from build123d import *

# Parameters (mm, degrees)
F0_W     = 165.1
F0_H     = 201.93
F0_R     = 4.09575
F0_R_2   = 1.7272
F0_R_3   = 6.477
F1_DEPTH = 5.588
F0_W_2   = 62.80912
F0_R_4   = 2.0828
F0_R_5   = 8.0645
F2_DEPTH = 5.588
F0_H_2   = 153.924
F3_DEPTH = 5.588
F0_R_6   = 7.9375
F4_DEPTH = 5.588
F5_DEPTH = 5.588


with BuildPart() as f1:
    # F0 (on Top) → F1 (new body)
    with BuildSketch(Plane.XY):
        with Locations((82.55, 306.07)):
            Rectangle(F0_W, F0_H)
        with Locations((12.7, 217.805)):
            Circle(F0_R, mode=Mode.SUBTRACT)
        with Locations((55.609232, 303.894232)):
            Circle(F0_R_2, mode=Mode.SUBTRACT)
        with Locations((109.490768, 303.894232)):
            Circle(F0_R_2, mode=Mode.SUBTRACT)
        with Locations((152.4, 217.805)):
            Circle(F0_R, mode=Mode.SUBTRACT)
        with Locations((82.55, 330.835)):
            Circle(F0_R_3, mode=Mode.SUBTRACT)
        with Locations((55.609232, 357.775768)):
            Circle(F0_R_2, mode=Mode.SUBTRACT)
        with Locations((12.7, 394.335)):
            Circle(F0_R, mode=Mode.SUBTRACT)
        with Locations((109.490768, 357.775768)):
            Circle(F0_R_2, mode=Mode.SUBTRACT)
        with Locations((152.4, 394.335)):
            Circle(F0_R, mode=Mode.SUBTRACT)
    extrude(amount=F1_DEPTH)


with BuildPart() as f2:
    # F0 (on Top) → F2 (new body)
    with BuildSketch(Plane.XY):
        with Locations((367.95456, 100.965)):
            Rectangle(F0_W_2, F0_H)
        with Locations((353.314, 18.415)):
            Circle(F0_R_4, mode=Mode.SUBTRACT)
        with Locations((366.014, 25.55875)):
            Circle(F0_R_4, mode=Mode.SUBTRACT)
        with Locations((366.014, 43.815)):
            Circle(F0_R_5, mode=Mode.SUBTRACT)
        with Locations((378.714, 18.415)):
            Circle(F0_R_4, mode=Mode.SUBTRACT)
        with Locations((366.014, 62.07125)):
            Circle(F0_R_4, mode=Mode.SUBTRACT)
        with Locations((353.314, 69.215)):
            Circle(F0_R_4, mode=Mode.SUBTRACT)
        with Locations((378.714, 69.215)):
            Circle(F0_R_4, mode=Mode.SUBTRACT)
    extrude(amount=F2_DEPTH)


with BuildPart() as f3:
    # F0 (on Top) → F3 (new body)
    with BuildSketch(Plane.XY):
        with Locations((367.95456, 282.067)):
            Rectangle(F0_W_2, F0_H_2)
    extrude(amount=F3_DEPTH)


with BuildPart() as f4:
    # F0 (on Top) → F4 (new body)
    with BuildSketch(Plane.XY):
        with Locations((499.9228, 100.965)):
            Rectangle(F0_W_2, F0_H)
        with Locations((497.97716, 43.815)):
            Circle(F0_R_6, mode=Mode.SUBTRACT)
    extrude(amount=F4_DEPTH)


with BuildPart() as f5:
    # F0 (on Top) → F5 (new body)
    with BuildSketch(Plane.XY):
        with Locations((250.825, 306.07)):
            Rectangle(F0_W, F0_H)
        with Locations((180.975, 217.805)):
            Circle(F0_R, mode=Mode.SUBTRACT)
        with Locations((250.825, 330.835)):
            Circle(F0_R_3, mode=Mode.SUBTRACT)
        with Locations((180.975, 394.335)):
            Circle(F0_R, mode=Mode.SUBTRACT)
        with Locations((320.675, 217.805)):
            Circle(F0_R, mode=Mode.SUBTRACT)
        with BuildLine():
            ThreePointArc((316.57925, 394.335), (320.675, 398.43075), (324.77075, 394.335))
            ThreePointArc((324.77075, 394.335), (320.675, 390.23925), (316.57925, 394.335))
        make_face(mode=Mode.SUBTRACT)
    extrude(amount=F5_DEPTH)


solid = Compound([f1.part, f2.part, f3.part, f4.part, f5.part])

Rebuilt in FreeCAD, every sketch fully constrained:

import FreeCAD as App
import Part
import Sketcher
from FreeCAD import Vector
Q = App.Units.Quantity

doc = App.newDocument("Part")
body = doc.addObject("PartDesign::Body", "Body")

# Sketch on XY plane
sketch1 = body.newObject("Sketcher::SketchObject", "Sketch")
sketch1.AttachmentSupport = (doc.getObject("XY_Plane"), [""])
sketch1.MapMode = "FlatFace"
sketch1.addGeometry(Part.LineSegment(Vector(0, 407, 0), Vector(0, 205.1, 0)), False)
sketch1.addGeometry(Part.LineSegment(Vector(0, 205.1, 0), Vector(165.1, 205.1, 0)), False)
sketch1.addGeometry(Part.LineSegment(Vector(165.1, 205.1, 0), Vector(165.1, 407, 0)), False)
sketch1.addGeometry(Part.LineSegment(Vector(165.1, 407, 0), Vector(0, 407, 0)), False)
sketch1.addGeometry(Part.Circle(Vector(12.7, 217.8, 0), Vector(0, 0, 1), 4.1), False)
sketch1.addGeometry(Part.Circle(Vector(55.6, 303.9, 0), Vector(0, 0, 1), 1.7), False)
sketch1.addGeometry(Part.Circle(Vector(152.4, 217.8, 0), Vector(0, 0, 1), 4.1), False)
sketch1.addGeometry(Part.Circle(Vector(109.5, 303.9, 0), Vector(0, 0, 1), 1.7), False)
sketch1.addGeometry(Part.Circle(Vector(82.5, 330.8, 0), Vector(0, 0, 1), 6.5), False)
sketch1.addGeometry(Part.Circle(Vector(12.7, 394.3, 0), Vector(0, 0, 1), 4.1), False)
sketch1.addGeometry(Part.Circle(Vector(55.6, 357.8, 0), Vector(0, 0, 1), 1.7), False)
sketch1.addGeometry(Part.Circle(Vector(109.5, 357.8, 0), Vector(0, 0, 1), 1.7), False)
sketch1.addGeometry(Part.Circle(Vector(152.4, 394.3, 0), Vector(0, 0, 1), 4.1), False)
sketch1.addConstraint(Sketcher.Constraint("Coincident", 0, 2, 1, 1))
sketch1.addConstraint(Sketcher.Constraint("Coincident", 1, 2, 2, 1))
sketch1.addConstraint(Sketcher.Constraint("Coincident", 2, 2, 3, 1))
sketch1.addConstraint(Sketcher.Constraint("Coincident", 3, 2, 0, 1))
sketch1.addConstraint(Sketcher.Constraint("Vertical", 0))
sketch1.addConstraint(Sketcher.Constraint("Horizontal", 1))
sketch1.addConstraint(Sketcher.Constraint("Vertical", 2))
sketch1.addConstraint(Sketcher.Constraint("Horizontal", 3))
sketch1.addConstraint(Sketcher.Constraint("Equal", 4, 6))
sketch1.addConstraint(Sketcher.Constraint("Equal", 5, 7))
sketch1.addConstraint(Sketcher.Constraint("Equal", 6, 9))
sketch1.addConstraint(Sketcher.Constraint("Equal", 7, 10))
sketch1.addConstraint(Sketcher.Constraint("Equal", 10, 11))
sketch1.addConstraint(Sketcher.Constraint("Equal", 9, 12))
sketch1.addConstraint(Sketcher.Constraint("PointOnObject", 0, 2, -2))
sketch1.addConstraint(Sketcher.Constraint("Horizontal", 4, 3, 6, 3))
sketch1.addConstraint(Sketcher.Constraint("Horizontal", 5, 3, 7, 3))
sketch1.addConstraint(Sketcher.Constraint("Horizontal", 10, 3, 11, 3))
sketch1.addConstraint(Sketcher.Constraint("Horizontal", 9, 3, 12, 3))
sketch1.addConstraint(Sketcher.Constraint("Vertical", 4, 3, 9, 3))
sketch1.addConstraint(Sketcher.Constraint("Vertical", 5, 3, 10, 3))
sketch1.addConstraint(Sketcher.Constraint("Vertical", 7, 3, 11, 3))
sketch1.addConstraint(Sketcher.Constraint("Vertical", 6, 3, 12, 3))
sketch1.addConstraint(Sketcher.Constraint("Diameter", 8, Q("0.51 in")))
sketch1.addConstraint(Sketcher.Constraint("Diameter", 5, Q("0.136 in")))
sketch1.addConstraint(Sketcher.Constraint("DistanceX", 1, 1, 1, 2, Q("6.5 in")))
sketch1.addConstraint(Sketcher.Constraint("DistanceX", -1, 1, 6, 3, Q("6 in")))
sketch1.addConstraint(Sketcher.Constraint("DistanceX", 4, 3, 1, 2, Q("6 in")))
sketch1.addConstraint(Sketcher.Constraint("DistanceY", 8, 3, 2, 2, Q("3 in")))
sketch1.addConstraint(Sketcher.Constraint("Diameter", 4, Q("0.3225 in")))
sketch1.addConstraint(Sketcher.Constraint("DistanceY", 0, 2, 0, 1, Q("7.95 in")))
sketch1.addConstraint(Sketcher.Constraint("DistanceY", 8, 3, 9, 3, Q("2.5 in")))
sketch1.addConstraint(Sketcher.Constraint("DistanceY", 0, 2, 4, 3, Q("0.5 in")))
sketch1.addConstraint(Sketcher.Constraint("DistanceX", -1, 1, 8, 3, Q("3.25 in")))
sketch1.addConstraint(Sketcher.Constraint("DistanceY", -1, 1, 4, 3, Q("8.575 in")))
sketch1.addConstraint(Sketcher.Constraint("DistanceY", -1, 1, 5, 3, Q("303.894232 mm")))
sketch1.addConstraint(Sketcher.Constraint("DistanceX", -1, 1, 7, 3, Q("109.490768 mm")))
sketch1.addConstraint(Sketcher.Constraint("DistanceY", -1, 1, 10, 3, Q("357.775768 mm")))
sketch1.addConstraint(Sketcher.Constraint("DistanceX", 5, 3, 6, 3, Q("96.790768 mm")))
pad1 = body.newObject("PartDesign::Pad", "Pad")
pad1.Profile = sketch1
pad1.Length = Q("0.22 in")
body2 = doc.addObject("PartDesign::Body", "Body001")

# Sketch on XY plane
sketch2 = body2.newObject("Sketcher::SketchObject", "Sketch001")
sketch2.AttachmentSupport = (doc.getObject("XY_Plane001"), [""])
sketch2.MapMode = "FlatFace"
sketch2.addGeometry(Part.LineSegment(Vector(336.6, 201.9, 0), Vector(336.6, 0, 0)), False)
sketch2.addGeometry(Part.LineSegment(Vector(336.6, 0, 0), Vector(399.4, 0, 0)), False)
sketch2.addGeometry(Part.LineSegment(Vector(399.4, 0, 0), Vector(399.4, 201.9, 0)), False)
sketch2.addGeometry(Part.LineSegment(Vector(399.4, 201.9, 0), Vector(336.6, 201.9, 0)), False)
sketch2.addGeometry(Part.Circle(Vector(353.3, 18.4, 0), Vector(0, 0, 1), 2.1), False)
sketch2.addGeometry(Part.Circle(Vector(366, 25.6, 0), Vector(0, 0, 1), 2.1), False)
sketch2.addGeometry(Part.Circle(Vector(378.7, 18.4, 0), Vector(0, 0, 1), 2.1), False)
sketch2.addGeometry(Part.Circle(Vector(353.3, 69.2, 0), Vector(0, 0, 1), 2.1), False)
sketch2.addGeometry(Part.Circle(Vector(366, 43.8, 0), Vector(0, 0, 1), 8.1), False)
sketch2.addGeometry(Part.Circle(Vector(366, 62.1, 0), Vector(0, 0, 1), 2.1), False)
sketch2.addGeometry(Part.Circle(Vector(378.7, 69.2, 0), Vector(0, 0, 1), 2.1), False)
sketch2.addConstraint(Sketcher.Constraint("Coincident", 0, 2, 1, 1))
sketch2.addConstraint(Sketcher.Constraint("Coincident", 1, 2, 2, 1))
sketch2.addConstraint(Sketcher.Constraint("Coincident", 2, 2, 3, 1))
sketch2.addConstraint(Sketcher.Constraint("Coincident", 3, 2, 0, 1))
sketch2.addConstraint(Sketcher.Constraint("Vertical", 0))
sketch2.addConstraint(Sketcher.Constraint("Horizontal", 1))
sketch2.addConstraint(Sketcher.Constraint("Vertical", 2))
sketch2.addConstraint(Sketcher.Constraint("Horizontal", 3))
sketch2.addConstraint(Sketcher.Constraint("Equal", 4, 5))
sketch2.addConstraint(Sketcher.Constraint("Equal", 5, 6))
sketch2.addConstraint(Sketcher.Constraint("Equal", 6, 7))
sketch2.addConstraint(Sketcher.Constraint("Equal", 7, 9))
sketch2.addConstraint(Sketcher.Constraint("Equal", 9, 10))
sketch2.addConstraint(Sketcher.Constraint("PointOnObject", 0, 2, -1))
sketch2.addConstraint(Sketcher.Constraint("Horizontal", 4, 3, 6, 3))
sketch2.addConstraint(Sketcher.Constraint("Horizontal", 7, 3, 10, 3))
sketch2.addConstraint(Sketcher.Constraint("Vertical", 4, 3, 7, 3))
sketch2.addConstraint(Sketcher.Constraint("Vertical", 5, 3, 8, 3))
sketch2.addConstraint(Sketcher.Constraint("Vertical", 8, 3, 9, 3))
sketch2.addConstraint(Sketcher.Constraint("Vertical", 6, 3, 10, 3))
sketch2.addConstraint(Sketcher.Constraint("Diameter", 4, Q("0.164 in")))
sketch2.addConstraint(Sketcher.Constraint("Diameter", 8, Q("0.635 in")))
sketch2.addConstraint(Sketcher.Constraint("DistanceX", 4, 3, 6, 3, Q("1 in")))
sketch2.addConstraint(Sketcher.Constraint("DistanceY", 4, 3, 7, 3, Q("2 in")))
sketch2.addConstraint(Sketcher.Constraint("DistanceY", 4, 3, 8, 3, Q("1 in")))
sketch2.addConstraint(Sketcher.Constraint("DistanceY", 0, 2, 0, 1, Q("7.95 in")))
sketch2.addConstraint(Sketcher.Constraint("DistanceX", 4, 3, 5, 3, Q("0.5 in")))
sketch2.addConstraint(Sketcher.Constraint("DistanceX", -1, 1, 4, 3, Q("13.91 in")))
sketch2.addConstraint(Sketcher.Constraint("DistanceX", -1, 1, 0, 2, Q("13.25 in")))
sketch2.addConstraint(Sketcher.Constraint("DistanceX", 1, 1, 1, 2, Q("2.4728 in")))
sketch2.addConstraint(Sketcher.Constraint("DistanceY", -1, 1, 4, 3, Q("0.725 in")))
sketch2.addConstraint(Sketcher.Constraint("DistanceY", 4, 3, 5, 3, Q("0.28125 in")))
sketch2.addConstraint(Sketcher.Constraint("DistanceY", 9, 3, 7, 3, Q("0.28125 in")))
pad2 = body2.newObject("PartDesign::Pad", "Pad001")
pad2.Profile = sketch2
pad2.Length = Q("0.22 in")
body3 = doc.addObject("PartDesign::Body", "Body002")

# Sketch on XY plane
sketch3 = body3.newObject("Sketcher::SketchObject", "Sketch002")
sketch3.AttachmentSupport = (doc.getObject("XY_Plane002"), [""])
sketch3.MapMode = "FlatFace"
sketch3.addGeometry(Part.LineSegment(Vector(337, 359, 0), Vector(337, 205, 0)), False)
sketch3.addGeometry(Part.LineSegment(Vector(337, 205, 0), Vector(399, 205, 0)), False)
sketch3.addGeometry(Part.LineSegment(Vector(399, 205, 0), Vector(399, 359, 0)), False)
sketch3.addGeometry(Part.LineSegment(Vector(399, 359, 0), Vector(337, 359, 0)), False)
sketch3.addConstraint(Sketcher.Constraint("Coincident", 0, 2, 1, 1))
sketch3.addConstraint(Sketcher.Constraint("Coincident", 1, 2, 2, 1))
sketch3.addConstraint(Sketcher.Constraint("Coincident", 2, 2, 3, 1))
sketch3.addConstraint(Sketcher.Constraint("Coincident", 3, 2, 0, 1))
sketch3.addConstraint(Sketcher.Constraint("Vertical", 0))
sketch3.addConstraint(Sketcher.Constraint("Horizontal", 1))
sketch3.addConstraint(Sketcher.Constraint("Vertical", 2))
sketch3.addConstraint(Sketcher.Constraint("Horizontal", 3))
sketch3.addConstraint(Sketcher.Constraint("DistanceY", 0, 2, 0, 1, Q("6.06 in")))
sketch3.addConstraint(Sketcher.Constraint("DistanceX", -1, 1, 0, 2, Q("13.25 in")))
sketch3.addConstraint(Sketcher.Constraint("DistanceX", 1, 1, 1, 2, Q("2.4728 in")))
sketch3.addConstraint(Sketcher.Constraint("DistanceY", -1, 1, 0, 2, Q("8.075 in")))
pad3 = body3.newObject("PartDesign::Pad", "Pad002")
pad3.Profile = sketch3
pad3.Length = Q("0.22 in")
body4 = doc.addObject("PartDesign::Body", "Body003")

# Sketch on XY plane
sketch4 = body4.newObject("Sketcher::SketchObject", "Sketch003")
sketch4.AttachmentSupport = (doc.getObject("XY_Plane003"), [""])
sketch4.MapMode = "FlatFace"
sketch4.addGeometry(Part.LineSegment(Vector(469, 202, 0), Vector(469, 0, 0)), False)
sketch4.addGeometry(Part.LineSegment(Vector(469, 0, 0), Vector(531, 0, 0)), False)
sketch4.addGeometry(Part.LineSegment(Vector(531, 0, 0), Vector(531, 202, 0)), False)
sketch4.addGeometry(Part.LineSegment(Vector(531, 202, 0), Vector(469, 202, 0)), False)
sketch4.addGeometry(Part.Circle(Vector(498, 44, 0), Vector(0, 0, 1), 8), False)
sketch4.addConstraint(Sketcher.Constraint("Coincident", 0, 2, 1, 1))
sketch4.addConstraint(Sketcher.Constraint("Coincident", 1, 2, 2, 1))
sketch4.addConstraint(Sketcher.Constraint("Coincident", 2, 2, 3, 1))
sketch4.addConstraint(Sketcher.Constraint("Coincident", 3, 2, 0, 1))
sketch4.addConstraint(Sketcher.Constraint("Vertical", 0))
sketch4.addConstraint(Sketcher.Constraint("Horizontal", 1))
sketch4.addConstraint(Sketcher.Constraint("Vertical", 2))
sketch4.addConstraint(Sketcher.Constraint("Horizontal", 3))
sketch4.addConstraint(Sketcher.Constraint("PointOnObject", 0, 2, -1))
sketch4.addConstraint(Sketcher.Constraint("Diameter", 4, Q("0.625 in")))
sketch4.addConstraint(Sketcher.Constraint("DistanceY", 0, 2, 0, 1, Q("7.95 in")))
sketch4.addConstraint(Sketcher.Constraint("DistanceX", 1, 1, 1, 2, Q("2.4728 in")))
sketch4.addConstraint(Sketcher.Constraint("DistanceY", -1, 1, 4, 3, Q("1.725 in")))
sketch4.addConstraint(Sketcher.Constraint("DistanceX", 4, 3, 1, 2, Q("1.313 in")))
sketch4.addConstraint(Sketcher.Constraint("DistanceX", -1, 1, 4, 3, Q("19.6054 in")))
pad4 = body4.newObject("PartDesign::Pad", "Pad003")
pad4.Profile = sketch4
pad4.Length = Q("0.22 in")
body5 = doc.addObject("PartDesign::Body", "Body004")

# Sketch on XY plane
sketch5 = body5.newObject("Sketcher::SketchObject", "Sketch004")
sketch5.AttachmentSupport = (doc.getObject("XY_Plane004"), [""])
sketch5.MapMode = "FlatFace"
sketch5.addGeometry(Part.LineSegment(Vector(168.3, 407, 0), Vector(168.3, 205.1, 0)), False)
sketch5.addGeometry(Part.LineSegment(Vector(168.3, 205.1, 0), Vector(333.4, 205.1, 0)), False)
sketch5.addGeometry(Part.LineSegment(Vector(333.4, 205.1, 0), Vector(333.4, 407, 0)), False)
sketch5.addGeometry(Part.LineSegment(Vector(333.4, 407, 0), Vector(168.3, 407, 0)), False)
sketch5.addGeometry(Part.Circle(Vector(181, 217.8, 0), Vector(0, 0, 1), 4.1), False)
sketch5.addGeometry(Part.Circle(Vector(320.7, 217.8, 0), Vector(0, 0, 1), 4.1), False)
sketch5.addGeometry(Part.Circle(Vector(250.8, 330.8, 0), Vector(0, 0, 1), 6.5), False)
sketch5.addGeometry(Part.Circle(Vector(181, 394.3, 0), Vector(0, 0, 1), 4.1), False)
sketch5.addGeometry(Part.Circle(Vector(320.7, 394.3, 0), Vector(0, 0, 1), 4.1), False)
sketch5.addConstraint(Sketcher.Constraint("Coincident", 0, 2, 1, 1))
sketch5.addConstraint(Sketcher.Constraint("Coincident", 1, 2, 2, 1))
sketch5.addConstraint(Sketcher.Constraint("Coincident", 2, 2, 3, 1))
sketch5.addConstraint(Sketcher.Constraint("Coincident", 3, 2, 0, 1))
sketch5.addConstraint(Sketcher.Constraint("Vertical", 0))
sketch5.addConstraint(Sketcher.Constraint("Horizontal", 1))
sketch5.addConstraint(Sketcher.Constraint("Vertical", 2))
sketch5.addConstraint(Sketcher.Constraint("Horizontal", 3))
sketch5.addConstraint(Sketcher.Constraint("Equal", 4, 5))
sketch5.addConstraint(Sketcher.Constraint("Equal", 5, 7))
sketch5.addConstraint(Sketcher.Constraint("Equal", 7, 8))
sketch5.addConstraint(Sketcher.Constraint("Horizontal", 4, 3, 5, 3))
sketch5.addConstraint(Sketcher.Constraint("Horizontal", 7, 3, 8, 3))
sketch5.addConstraint(Sketcher.Constraint("Vertical", 4, 3, 7, 3))
sketch5.addConstraint(Sketcher.Constraint("Vertical", 5, 3, 8, 3))
sketch5.addConstraint(Sketcher.Constraint("Diameter", 6, Q("0.51 in")))
sketch5.addConstraint(Sketcher.Constraint("DistanceX", 1, 1, 1, 2, Q("6.5 in")))
sketch5.addConstraint(Sketcher.Constraint("DistanceX", 0, 2, 5, 3, Q("6 in")))
sketch5.addConstraint(Sketcher.Constraint("DistanceX", 4, 3, 1, 2, Q("6 in")))
sketch5.addConstraint(Sketcher.Constraint("DistanceY", 6, 3, 2, 2, Q("3 in")))
sketch5.addConstraint(Sketcher.Constraint("Diameter", 4, Q("0.3225 in")))
sketch5.addConstraint(Sketcher.Constraint("DistanceY", 0, 2, 0, 1, Q("7.95 in")))
sketch5.addConstraint(Sketcher.Constraint("DistanceY", 6, 3, 7, 3, Q("2.5 in")))
sketch5.addConstraint(Sketcher.Constraint("DistanceY", 0, 2, 4, 3, Q("0.5 in")))
sketch5.addConstraint(Sketcher.Constraint("DistanceX", 4, 3, 6, 3, Q("2.75 in")))
sketch5.addConstraint(Sketcher.Constraint("DistanceX", -1, 1, 4, 3, Q("7.125 in")))
sketch5.addConstraint(Sketcher.Constraint("DistanceY", -1, 1, 4, 3, Q("8.575 in")))
pad5 = body5.newObject("PartDesign::Pad", "Pad004")
pad5.Profile = sketch5
pad5.Length = Q("0.22 in")

doc.recompute()
